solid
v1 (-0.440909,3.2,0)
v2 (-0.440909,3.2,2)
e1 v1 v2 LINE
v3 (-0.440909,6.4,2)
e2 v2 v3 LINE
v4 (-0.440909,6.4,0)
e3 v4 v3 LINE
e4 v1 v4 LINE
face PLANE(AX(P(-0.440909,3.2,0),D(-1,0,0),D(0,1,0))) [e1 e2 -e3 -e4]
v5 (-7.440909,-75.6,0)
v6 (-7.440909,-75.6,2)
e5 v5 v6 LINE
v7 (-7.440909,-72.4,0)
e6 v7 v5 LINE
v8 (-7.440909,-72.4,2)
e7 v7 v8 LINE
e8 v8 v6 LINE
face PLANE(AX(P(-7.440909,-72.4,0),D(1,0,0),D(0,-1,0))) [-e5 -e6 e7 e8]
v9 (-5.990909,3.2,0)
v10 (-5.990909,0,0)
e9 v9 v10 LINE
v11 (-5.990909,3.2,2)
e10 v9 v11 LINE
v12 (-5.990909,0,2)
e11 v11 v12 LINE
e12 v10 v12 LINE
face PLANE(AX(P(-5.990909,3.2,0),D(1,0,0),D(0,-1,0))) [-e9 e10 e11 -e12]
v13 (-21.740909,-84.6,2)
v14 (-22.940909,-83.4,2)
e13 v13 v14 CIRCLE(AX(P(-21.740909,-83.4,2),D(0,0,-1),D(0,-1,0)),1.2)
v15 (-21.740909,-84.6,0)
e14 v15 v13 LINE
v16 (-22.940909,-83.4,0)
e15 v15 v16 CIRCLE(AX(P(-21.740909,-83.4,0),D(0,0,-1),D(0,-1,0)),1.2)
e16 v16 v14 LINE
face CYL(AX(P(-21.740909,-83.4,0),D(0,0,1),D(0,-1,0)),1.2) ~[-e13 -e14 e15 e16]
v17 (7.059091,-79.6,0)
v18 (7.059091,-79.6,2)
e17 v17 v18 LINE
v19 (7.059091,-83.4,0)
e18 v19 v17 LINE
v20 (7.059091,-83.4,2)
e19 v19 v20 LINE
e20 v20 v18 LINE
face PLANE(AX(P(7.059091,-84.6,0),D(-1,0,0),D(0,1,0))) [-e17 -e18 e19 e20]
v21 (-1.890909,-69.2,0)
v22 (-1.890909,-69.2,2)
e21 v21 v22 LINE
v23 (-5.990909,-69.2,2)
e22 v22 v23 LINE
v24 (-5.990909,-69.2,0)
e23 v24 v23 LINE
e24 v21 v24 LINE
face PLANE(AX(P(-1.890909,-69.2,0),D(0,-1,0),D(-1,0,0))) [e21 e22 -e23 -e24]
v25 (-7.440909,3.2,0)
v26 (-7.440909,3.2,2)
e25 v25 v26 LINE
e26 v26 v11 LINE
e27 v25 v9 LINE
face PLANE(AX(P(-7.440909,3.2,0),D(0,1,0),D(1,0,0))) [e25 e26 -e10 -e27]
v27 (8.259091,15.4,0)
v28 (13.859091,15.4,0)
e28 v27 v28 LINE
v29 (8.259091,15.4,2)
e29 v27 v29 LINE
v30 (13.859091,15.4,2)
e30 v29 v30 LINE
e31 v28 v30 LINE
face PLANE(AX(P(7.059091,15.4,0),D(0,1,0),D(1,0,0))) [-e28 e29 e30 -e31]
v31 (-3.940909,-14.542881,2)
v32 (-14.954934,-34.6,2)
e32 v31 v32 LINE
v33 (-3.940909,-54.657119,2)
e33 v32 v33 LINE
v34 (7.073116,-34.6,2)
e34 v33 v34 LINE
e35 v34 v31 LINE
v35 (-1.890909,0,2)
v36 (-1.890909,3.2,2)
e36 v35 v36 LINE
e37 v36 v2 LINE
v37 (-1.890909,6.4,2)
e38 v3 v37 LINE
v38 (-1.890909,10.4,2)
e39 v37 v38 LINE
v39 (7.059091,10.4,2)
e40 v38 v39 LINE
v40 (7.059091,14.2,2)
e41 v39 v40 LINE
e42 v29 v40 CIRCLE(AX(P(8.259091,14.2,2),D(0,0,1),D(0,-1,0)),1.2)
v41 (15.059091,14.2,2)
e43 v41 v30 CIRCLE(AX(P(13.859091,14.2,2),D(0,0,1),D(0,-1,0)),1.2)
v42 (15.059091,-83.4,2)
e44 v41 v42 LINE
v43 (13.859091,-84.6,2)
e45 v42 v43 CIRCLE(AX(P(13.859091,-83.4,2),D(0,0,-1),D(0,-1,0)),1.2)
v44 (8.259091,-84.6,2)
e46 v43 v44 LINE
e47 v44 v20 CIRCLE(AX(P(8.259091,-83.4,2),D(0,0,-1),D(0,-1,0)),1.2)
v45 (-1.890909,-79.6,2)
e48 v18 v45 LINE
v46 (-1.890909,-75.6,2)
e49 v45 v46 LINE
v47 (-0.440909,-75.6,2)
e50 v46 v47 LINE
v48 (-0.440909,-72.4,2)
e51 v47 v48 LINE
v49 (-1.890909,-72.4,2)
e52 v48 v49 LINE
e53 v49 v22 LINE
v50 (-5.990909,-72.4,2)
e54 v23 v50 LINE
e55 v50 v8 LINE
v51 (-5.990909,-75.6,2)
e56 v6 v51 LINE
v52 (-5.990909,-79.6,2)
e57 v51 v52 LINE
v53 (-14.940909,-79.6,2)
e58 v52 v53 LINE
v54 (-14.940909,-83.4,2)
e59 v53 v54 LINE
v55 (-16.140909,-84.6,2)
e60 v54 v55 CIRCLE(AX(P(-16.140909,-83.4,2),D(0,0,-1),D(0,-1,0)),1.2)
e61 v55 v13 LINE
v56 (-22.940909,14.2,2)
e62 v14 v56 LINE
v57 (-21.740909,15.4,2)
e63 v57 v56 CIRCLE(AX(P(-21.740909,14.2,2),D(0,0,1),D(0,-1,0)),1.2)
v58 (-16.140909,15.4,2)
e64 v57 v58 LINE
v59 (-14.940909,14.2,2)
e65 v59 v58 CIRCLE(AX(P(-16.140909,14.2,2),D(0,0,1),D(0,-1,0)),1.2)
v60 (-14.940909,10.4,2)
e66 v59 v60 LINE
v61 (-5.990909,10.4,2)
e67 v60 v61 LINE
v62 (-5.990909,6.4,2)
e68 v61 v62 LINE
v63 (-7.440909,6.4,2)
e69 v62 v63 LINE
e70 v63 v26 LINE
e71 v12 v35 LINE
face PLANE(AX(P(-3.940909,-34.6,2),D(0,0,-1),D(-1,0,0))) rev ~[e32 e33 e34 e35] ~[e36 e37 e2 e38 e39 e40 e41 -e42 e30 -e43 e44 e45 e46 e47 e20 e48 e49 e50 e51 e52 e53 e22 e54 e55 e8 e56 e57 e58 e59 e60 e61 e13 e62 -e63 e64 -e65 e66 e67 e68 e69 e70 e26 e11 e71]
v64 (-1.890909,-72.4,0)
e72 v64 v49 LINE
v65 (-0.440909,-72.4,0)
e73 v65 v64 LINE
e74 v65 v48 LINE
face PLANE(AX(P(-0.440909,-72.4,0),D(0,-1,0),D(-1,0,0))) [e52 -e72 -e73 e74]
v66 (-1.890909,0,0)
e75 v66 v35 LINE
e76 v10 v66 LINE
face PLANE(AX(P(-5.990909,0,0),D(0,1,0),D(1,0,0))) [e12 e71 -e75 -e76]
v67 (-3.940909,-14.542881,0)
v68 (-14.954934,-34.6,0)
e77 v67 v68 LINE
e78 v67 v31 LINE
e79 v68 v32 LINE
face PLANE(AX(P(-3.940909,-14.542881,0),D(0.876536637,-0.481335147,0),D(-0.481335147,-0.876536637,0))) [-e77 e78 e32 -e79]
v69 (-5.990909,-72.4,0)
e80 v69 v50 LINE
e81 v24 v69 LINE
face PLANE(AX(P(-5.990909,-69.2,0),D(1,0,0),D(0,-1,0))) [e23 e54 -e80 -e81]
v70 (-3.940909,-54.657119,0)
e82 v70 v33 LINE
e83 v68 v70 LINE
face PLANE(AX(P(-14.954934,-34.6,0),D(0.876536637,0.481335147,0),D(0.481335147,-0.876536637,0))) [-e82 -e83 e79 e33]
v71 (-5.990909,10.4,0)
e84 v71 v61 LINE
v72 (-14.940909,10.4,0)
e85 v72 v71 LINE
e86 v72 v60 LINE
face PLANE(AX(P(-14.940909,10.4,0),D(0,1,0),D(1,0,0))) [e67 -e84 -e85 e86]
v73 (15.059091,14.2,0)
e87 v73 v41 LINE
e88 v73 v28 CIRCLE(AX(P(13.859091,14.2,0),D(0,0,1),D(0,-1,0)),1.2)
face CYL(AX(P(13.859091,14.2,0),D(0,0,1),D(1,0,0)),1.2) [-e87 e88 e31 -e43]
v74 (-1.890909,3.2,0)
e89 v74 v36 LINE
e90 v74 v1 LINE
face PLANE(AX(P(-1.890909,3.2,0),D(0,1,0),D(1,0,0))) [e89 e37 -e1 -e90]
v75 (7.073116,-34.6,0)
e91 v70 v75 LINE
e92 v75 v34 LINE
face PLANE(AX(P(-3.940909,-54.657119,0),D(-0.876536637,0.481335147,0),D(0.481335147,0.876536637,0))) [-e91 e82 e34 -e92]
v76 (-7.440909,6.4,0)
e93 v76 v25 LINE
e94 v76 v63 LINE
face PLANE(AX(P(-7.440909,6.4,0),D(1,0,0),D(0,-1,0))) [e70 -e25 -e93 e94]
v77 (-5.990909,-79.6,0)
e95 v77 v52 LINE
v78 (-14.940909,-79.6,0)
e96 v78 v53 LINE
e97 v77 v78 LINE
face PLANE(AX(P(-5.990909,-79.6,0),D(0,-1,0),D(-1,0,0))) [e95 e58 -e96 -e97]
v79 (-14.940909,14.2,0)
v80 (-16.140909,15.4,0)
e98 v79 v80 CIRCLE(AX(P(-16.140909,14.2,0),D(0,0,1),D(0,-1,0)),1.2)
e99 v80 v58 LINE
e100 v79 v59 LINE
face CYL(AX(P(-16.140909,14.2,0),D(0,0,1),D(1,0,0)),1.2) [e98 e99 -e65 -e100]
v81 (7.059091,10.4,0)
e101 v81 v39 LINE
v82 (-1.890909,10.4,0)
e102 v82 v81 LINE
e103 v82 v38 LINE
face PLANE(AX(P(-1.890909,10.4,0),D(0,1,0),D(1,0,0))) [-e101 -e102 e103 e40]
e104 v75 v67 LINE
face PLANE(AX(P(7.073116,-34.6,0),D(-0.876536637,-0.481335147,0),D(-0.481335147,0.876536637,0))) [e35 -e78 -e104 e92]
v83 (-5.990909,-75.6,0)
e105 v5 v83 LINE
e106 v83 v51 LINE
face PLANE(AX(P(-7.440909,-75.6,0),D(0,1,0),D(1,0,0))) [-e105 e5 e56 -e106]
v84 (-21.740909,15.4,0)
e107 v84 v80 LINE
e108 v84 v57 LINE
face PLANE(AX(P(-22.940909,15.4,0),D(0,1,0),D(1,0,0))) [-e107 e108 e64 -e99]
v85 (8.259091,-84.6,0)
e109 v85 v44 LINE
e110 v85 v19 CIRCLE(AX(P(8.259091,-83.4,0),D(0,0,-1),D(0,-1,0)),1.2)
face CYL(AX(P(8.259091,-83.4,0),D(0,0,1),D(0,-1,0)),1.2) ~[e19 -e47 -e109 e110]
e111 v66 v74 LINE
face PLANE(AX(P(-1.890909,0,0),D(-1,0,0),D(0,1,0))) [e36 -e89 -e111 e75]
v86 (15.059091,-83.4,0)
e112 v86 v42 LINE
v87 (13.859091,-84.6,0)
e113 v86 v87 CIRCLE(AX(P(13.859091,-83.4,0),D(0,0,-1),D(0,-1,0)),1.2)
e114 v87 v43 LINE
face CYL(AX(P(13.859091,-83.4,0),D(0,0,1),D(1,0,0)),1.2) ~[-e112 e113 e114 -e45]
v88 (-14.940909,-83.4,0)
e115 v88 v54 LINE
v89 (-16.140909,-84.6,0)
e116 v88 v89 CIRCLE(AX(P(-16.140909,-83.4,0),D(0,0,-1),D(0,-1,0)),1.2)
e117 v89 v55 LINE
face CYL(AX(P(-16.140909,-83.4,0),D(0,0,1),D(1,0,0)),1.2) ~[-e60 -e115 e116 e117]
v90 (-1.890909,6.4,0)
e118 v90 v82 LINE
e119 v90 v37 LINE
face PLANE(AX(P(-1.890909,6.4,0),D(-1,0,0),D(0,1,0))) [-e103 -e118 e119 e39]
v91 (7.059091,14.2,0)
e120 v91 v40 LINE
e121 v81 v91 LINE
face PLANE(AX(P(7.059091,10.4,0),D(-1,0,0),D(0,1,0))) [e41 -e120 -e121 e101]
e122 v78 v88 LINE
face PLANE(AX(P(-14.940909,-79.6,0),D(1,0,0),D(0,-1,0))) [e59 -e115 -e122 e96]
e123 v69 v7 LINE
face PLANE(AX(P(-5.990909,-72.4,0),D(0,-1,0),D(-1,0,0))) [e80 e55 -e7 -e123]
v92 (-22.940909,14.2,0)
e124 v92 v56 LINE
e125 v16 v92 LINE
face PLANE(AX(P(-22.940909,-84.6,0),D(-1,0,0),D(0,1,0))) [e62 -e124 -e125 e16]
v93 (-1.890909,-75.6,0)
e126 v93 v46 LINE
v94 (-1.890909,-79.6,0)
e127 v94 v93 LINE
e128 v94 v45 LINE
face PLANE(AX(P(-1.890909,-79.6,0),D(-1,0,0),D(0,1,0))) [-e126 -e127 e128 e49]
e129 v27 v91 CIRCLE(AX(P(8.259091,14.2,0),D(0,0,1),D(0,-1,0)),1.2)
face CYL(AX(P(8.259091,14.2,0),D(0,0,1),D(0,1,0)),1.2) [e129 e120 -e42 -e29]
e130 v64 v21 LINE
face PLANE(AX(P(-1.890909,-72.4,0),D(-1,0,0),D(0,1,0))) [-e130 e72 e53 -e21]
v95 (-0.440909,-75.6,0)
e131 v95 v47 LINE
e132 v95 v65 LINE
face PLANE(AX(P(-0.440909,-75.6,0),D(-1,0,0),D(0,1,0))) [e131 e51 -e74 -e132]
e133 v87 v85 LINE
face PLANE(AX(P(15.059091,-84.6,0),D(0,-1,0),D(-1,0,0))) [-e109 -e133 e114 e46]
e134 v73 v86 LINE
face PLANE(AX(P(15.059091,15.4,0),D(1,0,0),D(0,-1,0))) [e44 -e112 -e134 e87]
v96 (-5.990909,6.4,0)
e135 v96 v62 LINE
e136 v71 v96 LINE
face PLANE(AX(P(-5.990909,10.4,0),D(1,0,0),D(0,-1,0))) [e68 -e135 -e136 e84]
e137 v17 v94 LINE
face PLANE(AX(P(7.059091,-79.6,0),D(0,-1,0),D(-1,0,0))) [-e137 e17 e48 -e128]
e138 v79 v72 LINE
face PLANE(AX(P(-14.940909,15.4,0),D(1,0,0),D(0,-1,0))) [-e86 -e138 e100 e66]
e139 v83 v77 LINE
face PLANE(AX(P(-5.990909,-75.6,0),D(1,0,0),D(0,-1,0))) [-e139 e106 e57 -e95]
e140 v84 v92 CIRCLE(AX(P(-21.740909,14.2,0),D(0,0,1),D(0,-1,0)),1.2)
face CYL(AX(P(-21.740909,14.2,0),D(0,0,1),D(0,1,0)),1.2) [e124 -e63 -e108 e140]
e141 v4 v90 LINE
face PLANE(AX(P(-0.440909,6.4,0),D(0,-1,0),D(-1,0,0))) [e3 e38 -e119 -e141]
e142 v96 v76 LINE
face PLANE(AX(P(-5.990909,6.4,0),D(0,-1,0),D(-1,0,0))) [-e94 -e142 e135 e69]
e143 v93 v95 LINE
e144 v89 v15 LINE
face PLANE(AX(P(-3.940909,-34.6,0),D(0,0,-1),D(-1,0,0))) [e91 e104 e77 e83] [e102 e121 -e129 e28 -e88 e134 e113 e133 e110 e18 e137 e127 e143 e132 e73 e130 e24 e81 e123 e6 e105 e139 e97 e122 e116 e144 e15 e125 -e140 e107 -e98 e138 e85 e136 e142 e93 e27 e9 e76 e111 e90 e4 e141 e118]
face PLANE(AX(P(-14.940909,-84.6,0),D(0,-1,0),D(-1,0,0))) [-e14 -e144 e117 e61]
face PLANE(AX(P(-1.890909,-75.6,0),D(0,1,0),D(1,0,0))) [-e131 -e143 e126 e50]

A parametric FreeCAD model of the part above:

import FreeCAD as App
import Part
import Sketcher
Q = App.Units.Quantity


def edges_at(feature, points):
    """Names of the edges that pass closest to the given points."""
    edges = feature.Shape.Edges
    near = lambda p: min(range(len(edges)), key=lambda i: edges[i].distToShape(Part.Vertex(*p))[0])
    return sorted({f"Edge{near(p) + 1}" for p in points})

doc = App.newDocument("Part")
body = doc.addObject("PartDesign::Body", "Body")

# Sketch on XY plane
sketch1 = body.newObject("Sketcher::SketchObject", "Sketch")
sketch1.AttachmentSupport = (doc.getObject("XY_Plane"), [""])
sketch1.MapMode = "FlatFace"
sketch1.addGeometry(Part.LineSegment(App.Vector(15.059091, -84.6, 0), App.Vector(15.059091, 15.4, 0)), False)
sketch1.addGeometry(Part.LineSegment(App.Vector(15.059091, 15.4, 0), App.Vector(7.059091, 15.4, 0)), False)
sketch1.addGeometry(Part.LineSegment(App.Vector(7.059091, 15.4, 0), App.Vector(7.059091, 10.4, 0)), False)
sketch1.addGeometry(Part.LineSegment(App.Vector(7.059091, 10.4, 0), App.Vector(-1.890909, 10.4, 0)), False)
sketch1.addGeometry(Part.LineSegment(App.Vector(-1.890909, 10.4, 0), App.Vector(-1.890909, 6.4, 0)), False)
sketch1.addGeometry(Part.LineSegment(App.Vector(-1.890909, 6.4, 0), App.Vector(-0.440909, 6.4, 0)), False)
sketch1.addGeometry(Part.LineSegment(App.Vector(-0.440909, 6.4, 0), App.Vector(-0.440909, 3.2, 0)), False)
sketch1.addGeometry(Part.LineSegment(App.Vector(-0.440909, 3.2, 0), App.Vector(-1.890909, 3.2, 0)), False)
sketch1.addGeometry(Part.LineSegment(App.Vector(-1.890909, 3.2, 0), App.Vector(-1.890909, 0, 0)), False)
sketch1.addGeometry(Part.LineSegment(App.Vector(-1.890909, 0, 0), App.Vector(-5.990909, 0, 0)), False)
sketch1.addGeometry(Part.LineSegment(App.Vector(-5.990909, 0, 0), App.Vector(-5.990909, 3.2, 0)), False)
sketch1.addGeometry(Part.LineSegment(App.Vector(-5.990909, 3.2, 0), App.Vector(-7.440909, 3.2, 0)), False)
sketch1.addGeometry(Part.LineSegment(App.Vector(-7.440909, 3.2, 0), App.Vector(-7.440909, 6.4, 0)), False)
sketch1.addGeometry(Part.LineSegment(App.Vector(-7.440909, 6.4, 0), App.Vector(-5.990909, 6.4, 0)), False)
sketch1.addGeometry(Part.LineSegment(App.Vector(-5.990909, 6.4, 0), App.Vector(-5.990909, 10.4, 0)), False)
sketch1.addGeometry(Part.LineSegment(App.Vector(-5.990909, 10.4, 0), App.Vector(-14.940909, 10.4, 0)), False)
sketch1.addGeometry(Part.LineSegment(App.Vector(-14.940909, 10.4, 0), App.Vector(-14.940909, 15.4, 0)), False)
sketch1.addGeometry(Part.LineSegment(App.Vector(-14.940909, 15.4, 0), App.Vector(-22.940909, 15.4, 0)), False)
sketch1.addGeometry(Part.LineSegment(App.Vector(-22.940909, 15.4, 0), App.Vector(-22.940909, -84.6, 0)), False)
sketch1.addGeometry(Part.LineSegment(App.Vector(-22.940909, -84.6, 0), App.Vector(-14.940909, -84.6, 0)), False)
sketch1.addGeometry(Part.LineSegment(App.Vector(-14.940909, -84.6, 0), App.Vector(-14.940909, -79.6, 0)), False)
sketch1.addGeometry(Part.LineSegment(App.Vector(-14.940909, -79.6, 0), App.Vector(-5.990909, -79.6, 0)), False)
sketch1.addGeometry(Part.LineSegment(App.Vector(-5.990909, -79.6, 0), App.Vector(-5.990909, -75.6, 0)), False)
sketch1.addGeometry(Part.LineSegment(App.Vector(-5.990909, -75.6, 0), App.Vector(-7.440909, -75.6, 0)), False)
sketch1.addGeometry(Part.LineSegment(App.Vector(-7.440909, -75.6, 0), App.Vector(-7.440909, -72.4, 0)), False)
sketch1.addGeometry(Part.LineSegment(App.Vector(-7.440909, -72.4, 0), App.Vector(-5.990909, -72.4, 0)), False)
sketch1.addGeometry(Part.LineSegment(App.Vector(-5.990909, -72.4, 0), App.Vector(-5.990909, -69.2, 0)), False)
sketch1.addGeometry(Part.LineSegment(App.Vector(-5.990909, -69.2, 0), App.Vector(-1.890909, -69.2, 0)), False)
sketch1.addGeometry(Part.LineSegment(App.Vector(-1.890909, -69.2, 0), App.Vector(-1.890909, -72.4, 0)), False)
sketch1.addGeometry(Part.LineSegment(App.Vector(-1.890909, -72.4, 0), App.Vector(-0.440909, -72.4, 0)), False)
sketch1.addGeometry(Part.LineSegment(App.Vector(-0.440909, -72.4, 0), App.Vector(-0.440909, -75.6, 0)), False)
sketch1.addGeometry(Part.LineSegment(App.Vector(-0.440909, -75.6, 0), App.Vector(-1.890909, -75.6, 0)), False)
sketch1.addGeometry(Part.LineSegment(App.Vector(-1.890909, -75.6, 0), App.Vector(-1.890909, -79.6, 0)), False)
sketch1.addGeometry(Part.LineSegment(App.Vector(-1.890909, -79.6, 0), App.Vector(7.059091, -79.6, 0)), False)
sketch1.addGeometry(Part.LineSegment(App.Vector(7.059091, -79.6, 0), App.Vector(7.059091, -84.6, 0)), False)
sketch1.addGeometry(Part.LineSegment(App.Vector(7.059091, -84.6, 0), App.Vector(15.059091, -84.6, 0)), False)
sketch1.addGeometry(Part.LineSegment(App.Vector(-3.940909, -14.542881, 0), App.Vector(7.073116, -34.6, 0)), False)
sketch1.addGeometry(Part.LineSegment(App.Vector(7.073116, -34.6, 0), App.Vector(-3.940909, -54.657119, 0)), False)
sketch1.addGeometry(Part.LineSegment(App.Vector(-3.940909, -54.657119, 0), App.Vector(-14.954934, -34.6, 0)), False)
sketch1.addGeometry(Part.LineSegment(App.Vector(-14.954934, -34.6, 0), App.Vector(-3.940909, -14.542881, 0)), False)
sketch1.addConstraint(Sketcher.Constraint("Coincident", 0, 2, 1, 1))
sketch1.addConstraint(Sketcher.Constraint("Coincident", 1, 2, 2, 1))
sketch1.addConstraint(Sketcher.Constraint("Coincident", 2, 2, 3, 1))
sketch1.addConstraint(Sketcher.Constraint("Coincident", 3, 2, 4, 1))
sketch1.addConstraint(Sketcher.Constraint("Coincident", 4, 2, 5, 1))
sketch1.addConstraint(Sketcher.Constraint("Coincident", 5, 2, 6, 1))
sketch1.addConstraint(Sketcher.Constraint("Coincident", 6, 2, 7, 1))
sketch1.addConstraint(Sketcher.Constraint("Coincident", 7, 2, 8, 1))
sketch1.addConstraint(Sketcher.Constraint("Coincident", 8, 2, 9, 1))
sketch1.addConstraint(Sketcher.Constraint("Coincident", 9, 2, 10, 1))
sketch1.addConstraint(Sketcher.Constraint("Coincident", 10, 2, 11, 1))
sketch1.addConstraint(Sketcher.Constraint("Coincident", 11, 2, 12, 1))
sketch1.addConstraint(Sketcher.Constraint("Coincident", 12, 2, 13, 1))
sketch1.addConstraint(Sketcher.Constraint("Coincident", 13, 2, 14, 1))
sketch1.addConstraint(Sketcher.Constraint("Coincident", 14, 2, 15, 1))
sketch1.addConstraint(Sketcher.Constraint("Coincident", 15, 2, 16, 1))
sketch1.addConstraint(Sketcher.Constraint("Coincident", 16, 2, 17, 1))
sketch1.addConstraint(Sketcher.Constraint("Coincident", 17, 2, 18, 1))
sketch1.addConstraint(Sketcher.Constraint("Coincident", 18, 2, 19, 1))
sketch1.addConstraint(Sketcher.Constraint("Coincident", 19, 2, 20, 1))
sketch1.addConstraint(Sketcher.Constraint("Coincident", 20, 2, 21, 1))
sketch1.addConstraint(Sketcher.Constraint("Coincident", 21, 2, 22, 1))
sketch1.addConstraint(Sketcher.Constraint("Coincident", 22, 2, 23, 1))
sketch1.addConstraint(Sketcher.Constraint("Coincident", 23, 2, 24, 1))
sketch1.addConstraint(Sketcher.Constraint("Coincident", 24, 2, 25, 1))
sketch1.addConstraint(Sketcher.Constraint("Coincident", 25, 2, 26, 1))
sketch1.addConstraint(Sketcher.Constraint("Coincident", 26, 2, 27, 1))
sketch1.addConstraint(Sketcher.Constraint("Coincident", 27, 2, 28, 1))
sketch1.addConstraint(Sketcher.Constraint("Coincident", 28, 2, 29, 1))
sketch1.addConstraint(Sketcher.Constraint("Coincident", 29, 2, 30, 1))
sketch1.addConstraint(Sketcher.Constraint("Coincident", 30, 2, 31, 1))
sketch1.addConstraint(Sketcher.Constraint("Coincident", 31, 2, 32, 1))
sketch1.addConstraint(Sketcher.Constraint("Coincident", 32, 2, 33, 1))
sketch1.addConstraint(Sketcher.Constraint("Coincident", 33, 2, 34, 1))
sketch1.addConstraint(Sketcher.Constraint("Coincident", 34, 2, 35, 1))
sketch1.addConstraint(Sketcher.Constraint("Coincident", 35, 2, 0, 1))
sketch1.addConstraint(Sketcher.Constraint("Coincident", 36, 2, 37, 1))
sketch1.addConstraint(Sketcher.Constraint("Coincident", 37, 2, 38, 1))
sketch1.addConstraint(Sketcher.Constraint("Coincident", 38, 2, 39, 1))
sketch1.addConstraint(Sketcher.Constraint("Coincident", 39, 2, 36, 1))
sketch1.addConstraint(Sketcher.Constraint("Vertical", 0))
sketch1.addConstraint(Sketcher.Constraint("Horizontal", 1))
sketch1.addConstraint(Sketcher.Constraint("Vertical", 2))
sketch1.addConstraint(Sketcher.Constraint("Horizontal", 3))
sketch1.addConstraint(Sketcher.Constraint("Vertical", 4))
sketch1.addConstraint(Sketcher.Constraint("Horizontal", 5))
sketch1.addConstraint(Sketcher.Constraint("Vertical", 6))
sketch1.addConstraint(Sketcher.Constraint("Horizontal", 7))
sketch1.addConstraint(Sketcher.Constraint("Vertical", 8))
sketch1.addConstraint(Sketcher.Constraint("Horizontal", 9))
sketch1.addConstraint(Sketcher.Constraint("Vertical", 10))
sketch1.addConstraint(Sketcher.Constraint("Horizontal", 11))
sketch1.addConstraint(Sketcher.Constraint("Vertical", 12))
sketch1.addConstraint(Sketcher.Constraint("Horizontal", 13))
sketch1.addConstraint(Sketcher.Constraint("Vertical", 14))
sketch1.addConstraint(Sketcher.Constraint("Horizontal", 15))
sketch1.addConstraint(Sketcher.Constraint("Vertical", 16))
sketch1.addConstraint(Sketcher.Constraint("Horizontal", 17))
sketch1.addConstraint(Sketcher.Constraint("Vertical", 18))
sketch1.addConstraint(Sketcher.Constraint("Horizontal", 19))
sketch1.addConstraint(Sketcher.Constraint("Vertical", 20))
sketch1.addConstraint(Sketcher.Constraint("Horizontal", 21))
sketch1.addConstraint(Sketcher.Constraint("Vertical", 22))
sketch1.addConstraint(Sketcher.Constraint("Horizontal", 23))
sketch1.addConstraint(Sketcher.Constraint("Vertical", 24))
sketch1.addConstraint(Sketcher.Constraint("Horizontal", 25))
sketch1.addConstraint(Sketcher.Constraint("Vertical", 26))
sketch1.addConstraint(Sketcher.Constraint("Horizontal", 27))
sketch1.addConstraint(Sketcher.Constraint("Vertical", 28))
sketch1.addConstraint(Sketcher.Constraint("Horizontal", 29))
sketch1.addConstraint(Sketcher.Constraint("Vertical", 30))
sketch1.addConstraint(Sketcher.Constraint("Horizontal", 31))
sketch1.addConstraint(Sketcher.Constraint("Vertical", 32))
sketch1.addConstraint(Sketcher.Constraint("Horizontal", 33))
sketch1.addConstraint(Sketcher.Constraint("Vertical", 34))
sketch1.addConstraint(Sketcher.Constraint("Horizontal", 35))
sketch1.addConstraint(Sketcher.Constraint("PointOnObject", 8, 2, -1))
sketch1.addConstraint(Sketcher.Constraint("Parallel", 36, 38))
sketch1.addConstraint(Sketcher.Constraint("Parallel", 37, 39))
sketch1.addConstraint(Sketcher.Constraint("Horizontal", 7, 2, 10, 2))
sketch1.addConstraint(Sketcher.Constraint("Horizontal", 5, 2, 12, 2))
sketch1.addConstraint(Sketcher.Constraint("Horizontal", 3, 2, 14, 2))
sketch1.addConstraint(Sketcher.Constraint("Horizontal", 1, 2, 16, 2))
sketch1.addConstraint(Sketcher.Constraint("Horizontal", 25, 2, 28, 2))
sketch1.addConstraint(Sketcher.Constraint("Horizontal", 23, 2, 30, 2))
sketch1.addConstraint(Sketcher.Constraint("Horizontal", 21, 2, 32, 2))
sketch1.addConstraint(Sketcher.Constraint("Horizontal", 19, 2, 34, 2))
sketch1.addConstraint(Sketcher.Constraint("Horizontal", 36, 2, 38, 2))
sketch1.addConstraint(Sketcher.Constraint("Vertical", 4, 2, 7, 2))
sketch1.addConstraint(Sketcher.Constraint("Vertical", 10, 2, 13, 2))
sketch1.addConstraint(Sketcher.Constraint("Vertical", 16, 2, 19, 2))
sketch1.addConstraint(Sketcher.Constraint("Vertical", 14, 2, 21, 2))
sketch1.addConstraint(Sketcher.Constraint("Vertical", 12, 2, 23, 2))
sketch1.addConstraint(Sketcher.Constraint("Vertical", 22, 2, 25, 2))
sketch1.addConstraint(Sketcher.Constraint("Vertical", 8, 2, 27, 2))
sketch1.addConstraint(Sketcher.Constraint("Vertical", 6, 2, 29, 2))
sketch1.addConstraint(Sketcher.Constraint("Vertical", 28, 2, 31, 2))
sketch1.addConstraint(Sketcher.Constraint("Vertical", 2, 2, 33, 2))
sketch1.addConstraint(Sketcher.Constraint("Vertical", 37, 2, 39, 2))
sketch1.addConstraint(Sketcher.Constraint("Equal", 7, 11))
sketch1.addConstraint(Sketcher.Constraint("Equal", 3, 15))
sketch1.addConstraint(Sketcher.Constraint("Equal", 1, 17))
sketch1.addConstraint(Sketcher.Constraint("Equal", 6, 8))
sketch1.addConstraint(Sketcher.Constraint("Equal", 16, 20))
sketch1.addConstraint(Sketcher.Constraint("Equal", 14, 22))
sketch1.addConstraint(Sketcher.Constraint("Equal", 12, 24))
sketch1.addConstraint(Sketcher.Constraint("Equal", 24, 26))
sketch1.addConstraint(Sketcher.Constraint("DistanceX", 1, 2, 1, 1, Q("8 mm")))
sketch1.addConstraint(Sketcher.Constraint("DistanceY", 0, 1, 0, 2, Q("100 mm")))
sketch1.addConstraint(Sketcher.Constraint("DistanceY", 2, 2, 2, 1, Q("5 mm")))
sketch1.addConstraint(Sketcher.Constraint("DistanceY", 4, 2, 4, 1, Q("4 mm")))
sketch1.addConstraint(Sketcher.Constraint("DistanceX", 9, 2, 9, 1, Q("4.1 mm")))
sketch1.addConstraint(Sketcher.Constraint("DistanceY", 6, 2, 6, 1, Q("3.2 mm")))
sketch1.addConstraint(Sketcher.Constraint("DistanceX", 3, 2, 3, 1, Q("8.95 mm")))
sketch1.addConstraint(Sketcher.Constraint("DistanceX", 5, 1, 5, 2, Q("1.45 mm")))
sketch1.addConstraint(Sketcher.Constraint("DistanceY", 36, 2, -1, 1, Q("34.6 mm")))
sketch1.addConstraint(Sketcher.Constraint("DistanceX", 24, 2, 37, 2, Q("3.5 mm")))
sketch1.addConstraint(Sketcher.Constraint("DistanceX", -1, 1, 0, 2, Q("15.059091 mm")))
sketch1.addConstraint(Sketcher.Constraint("DistanceY", 37, 2, -1, 1, Q("54.657119 mm")))
sketch1.addConstraint(Sketcher.Constraint("DistanceX", 38, 2, 36, 2, Q("22.028049 mm")))
pad1 = body.newObject("PartDesign::Pad", "Pad")
pad1.Profile = sketch1
pad1.Length = 2
doc.recompute()

fillet = body.newObject("PartDesign::Fillet", "Fillet")
fillet.Base = (pad1, edges_at(pad1, [
    (7.059, 15.4, 1),
    (15.059, 15.4, 1),
    (15.059, -84.6, 1),
    (7.059, -84.6, 1),
    (-14.941, -84.6, 1),
    (-22.941, -84.6, 1),
    (-22.941, 15.4, 1),
    (-14.941, 15.4, 1),
]))
fillet.Radius = 1.2

doc.recompute()
